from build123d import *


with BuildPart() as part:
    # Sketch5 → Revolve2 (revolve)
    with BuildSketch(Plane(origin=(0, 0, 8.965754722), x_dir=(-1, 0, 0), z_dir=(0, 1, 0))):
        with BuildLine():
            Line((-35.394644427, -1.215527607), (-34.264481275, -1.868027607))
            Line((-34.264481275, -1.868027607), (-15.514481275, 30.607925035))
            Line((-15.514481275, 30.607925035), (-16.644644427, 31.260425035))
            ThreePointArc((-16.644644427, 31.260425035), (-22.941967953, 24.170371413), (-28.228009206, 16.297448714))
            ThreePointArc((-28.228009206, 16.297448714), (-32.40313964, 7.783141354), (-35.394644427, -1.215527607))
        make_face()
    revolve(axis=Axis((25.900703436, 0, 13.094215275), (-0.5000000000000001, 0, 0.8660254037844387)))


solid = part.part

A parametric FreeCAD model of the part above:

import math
import FreeCAD as App
import Part
import Sketcher

V = App.Vector
Q = App.Units.Quantity

doc = App.newDocument("Part")
params = doc.addObject("Spreadsheet::Sheet", "Params")
for row, (alias, value) in enumerate([
    ("sketch1_length", "37.5 mm"),
    ("revolution_angle", "360 deg"),
], start=1):
    params.set(f"A{row}", alias)
    params.set(f"B{row}", "=" + value)
    params.setAlias(f"B{row}", alias)

body = doc.addObject("PartDesign::Body", "Body")

sketch1 = body.newObject("Sketcher::SketchObject", "Sketch")
sketch1.AttachmentSupport = (doc.getObject("XZ_Plane"), [""])
sketch1.MapMode = "FlatFace"
sketch1.addGeometry([
    Part.LineSegment(V(35.4, 7.8, 0), V(34.3, 7.1, 0)),
    Part.LineSegment(V(34.3, 7.1, 0), V(15.5, 39.6, 0)),
    Part.LineSegment(V(15.5, 39.6, 0), V(16.6, 40.2, 0)),
    Part.ArcOfCircle(Part.Circle(V(-32.7, -9.9, 0), V(0, 0, 1), 70.3), math.radians(30.01), math.radians(45.48)),
    Part.ArcOfCircle(Part.Circle(V(-32.7, -9.9, 0), V(0, 0, 1), 70.3), math.radians(14.52), math.radians(29.99)),
], False)
sketch1.addGeometry(Part.LineSegment(V(30.6, 5, 0), V(11.8, 37.5, 0)), True)
sketch1.addConstraint([
    Sketcher.Constraint("Coincident", 0, 2, 1, 1),
    Sketcher.Constraint("Coincident", 1, 2, 2, 1),
    Sketcher.Constraint("Coincident", 2, 2, 3, 2),
    Sketcher.Constraint("Coincident", 3, 1, 4, 2),
    Sketcher.Constraint("Coincident", 4, 1, 0, 1),
    Sketcher.Constraint("Equal", 3, 4),
    Sketcher.Constraint("Perpendicular", 0, 1),
    Sketcher.Constraint("Perpendicular", 1, 2),
    Sketcher.Constraint("Perpendicular", 2, 5),
    Sketcher.Constraint("Equal", 0, 2),
    Sketcher.Constraint("Equal", 1, 5),
    Sketcher.Constraint("Angle", 0, Q("-150 deg")),
    Sketcher.Constraint("Distance", 1, Q("37.5 mm")),
    Sketcher.Constraint("Distance", 0, Q("1.305 mm")),
    Sketcher.Constraint("Radius", 3, Q("70.314647 mm")),
    Sketcher.Constraint("DistanceY", 5, 1, 4, 1, Q("2.775 mm")),
    Sketcher.Constraint("DistanceX", 4, 3, 2, 2, Q("49.3181 mm")),
    Sketcher.Constraint("DistanceX", -1, 1, 0, 2, Q("34.264481 mm")),
    Sketcher.Constraint("DistanceY", -1, 1, 1, 2, Q("39.57368 mm")),
    Sketcher.Constraint("DistanceX", -1, 1, 3, 1, Q("28.228009 mm")),
    Sketcher.Constraint("DistanceX", 5, 1, 4, 1, Q("4.806441 mm")),
])
sketch1.setExpression("Constraints[12]", "Params.sketch1_length")
revolution = body.newObject("PartDesign::Revolution", "Revolution")
revolution.Profile = sketch1
revolution.ReferenceAxis = (sketch1, ["Axis0"])
revolution.setExpression("Angle", "Params.revolution_angle")

doc.recompute()
